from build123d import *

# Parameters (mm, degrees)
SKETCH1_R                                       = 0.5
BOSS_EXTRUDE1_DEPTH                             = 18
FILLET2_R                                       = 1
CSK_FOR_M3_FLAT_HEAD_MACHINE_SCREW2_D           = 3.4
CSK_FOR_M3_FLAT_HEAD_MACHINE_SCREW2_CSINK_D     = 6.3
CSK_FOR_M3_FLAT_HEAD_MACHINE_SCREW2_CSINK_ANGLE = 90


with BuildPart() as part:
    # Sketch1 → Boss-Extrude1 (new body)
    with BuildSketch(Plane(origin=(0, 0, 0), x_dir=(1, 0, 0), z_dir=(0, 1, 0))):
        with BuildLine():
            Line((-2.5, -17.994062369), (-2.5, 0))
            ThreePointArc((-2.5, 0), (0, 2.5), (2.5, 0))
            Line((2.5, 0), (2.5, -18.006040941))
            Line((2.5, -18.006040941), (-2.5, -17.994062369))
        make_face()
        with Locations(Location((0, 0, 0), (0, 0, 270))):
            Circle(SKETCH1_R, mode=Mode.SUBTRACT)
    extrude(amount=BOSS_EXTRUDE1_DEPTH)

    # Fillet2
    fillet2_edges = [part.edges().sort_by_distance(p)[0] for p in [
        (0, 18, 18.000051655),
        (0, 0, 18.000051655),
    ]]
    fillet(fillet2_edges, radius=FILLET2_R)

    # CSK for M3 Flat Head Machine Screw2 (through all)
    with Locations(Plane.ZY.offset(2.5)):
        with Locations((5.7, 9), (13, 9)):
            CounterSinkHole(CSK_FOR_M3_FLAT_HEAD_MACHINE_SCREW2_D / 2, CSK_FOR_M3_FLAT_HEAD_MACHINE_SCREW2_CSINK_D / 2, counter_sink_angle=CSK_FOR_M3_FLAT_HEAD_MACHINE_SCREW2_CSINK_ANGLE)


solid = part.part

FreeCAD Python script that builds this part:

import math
import FreeCAD as App
import Part
import Sketcher

V = App.Vector
Q = App.Units.Quantity


def edges_at(feature, points):
    """Names of the edges that pass closest to the given points."""
    edges = feature.Shape.Edges
    near = lambda p: min(range(len(edges)), key=lambda i: edges[i].distToShape(Part.Vertex(*p))[0])
    return sorted({f"Edge{near(p) + 1}" for p in points})

doc = App.newDocument("Part")
params = doc.addObject("Spreadsheet::Sheet", "Params")
for row, (alias, value) in enumerate([
    ("sketch1_diameter", "1 mm"),
    ("sketch1_radius", "2.5 mm"),
    ("pad1_length", "18 mm"),
    ("fillet_radius", "1 mm"),
    ("sketch2_diameter", "3.4 mm"),
    ("hole_diameter", "3.4 mm"),
    ("hole_csink_diameter", "6.3 mm"),
], start=1):
    params.set(f"A{row}", alias)
    params.set(f"B{row}", "=" + value)
    params.setAlias(f"B{row}", alias)

body = doc.addObject("PartDesign::Body", "Body")

# Sketch on XZ plane
sketch1 = body.newObject("Sketcher::SketchObject", "Sketch")
sketch1.AttachmentSupport = (doc.getObject("XZ_Plane"), [""])
sketch1.MapMode = "FlatFace"
sketch1.addGeometry([
    Part.LineSegment(V(-2.5, 0, 0), V(-2.5, 18, 0)),  # 0
    Part.LineSegment(V(-2.5, 18, 0), V(2.5, 18, 0)),  # 1
    Part.LineSegment(V(2.5, 18, 0), V(2.5, 0, 0)),  # 2
    Part.ArcOfCircle(Part.Circle(V(0, 0, 0), V(0, 0, 1), 2.5), math.radians(180), math.radians(360)),  # 3
    Part.Circle(V(0, 0, 0), V(0, 0, 1), 0.5),  # 4
], False)
sketch1.addConstraint([
    Sketcher.Constraint("Coincident", 0, 2, 1, 1),
    Sketcher.Constraint("Coincident", 1, 2, 2, 1),
    Sketcher.Constraint("Tangent", 2, 2, 3, 2),
    Sketcher.Constraint("Tangent", 3, 1, 0, 1),
    Sketcher.Constraint("Vertical", 0),
    Sketcher.Constraint("Vertical", 2),
    Sketcher.Constraint("Coincident", 3, 3, -1, 1),
    Sketcher.Constraint("Coincident", 4, 3, -1, 1),
    Sketcher.Constraint("Diameter", 4, Q("1 mm")),
    Sketcher.Constraint("Radius", 3, Q("2.5 mm")),
    Sketcher.Constraint("DistanceY", 2, 2, 2, 1, Q("18.006041 mm")),
    Sketcher.Constraint("DistanceY", 0, 1, 0, 2, Q("17.994062 mm")),
])
sketch1.setExpression("Constraints[8]", "Params.sketch1_diameter")
sketch1.setExpression("Constraints[9]", "Params.sketch1_radius")
pad1 = body.newObject("PartDesign::Pad", "Pad")
pad1.Profile = sketch1
pad1.setExpression("Length", "Params.pad1_length")
pad1.Reversed = True
doc.recompute()

fillet = body.newObject("PartDesign::Fillet", "Fillet")
fillet.Base = (pad1, edges_at(pad1, [(0, 18, 18), (0, 0, 18)]))
fillet.setExpression("Radius", "Params.fillet_radius")

# Sketch on YZ plane
sketch2 = body.newObject("Sketcher::SketchObject", "Sketch001")
sketch2.AttachmentSupport = (doc.getObject("YZ_Plane"), [""])
sketch2.MapMode = "FlatFace"
sketch2.AttachmentOffset = App.Placement(V(0, 0, -2.5), App.Rotation())
sketch2.addGeometry([
    Part.Circle(V(9, 5.7, 0), V(0, 0, 1), 1.7),
    Part.Circle(V(9, 13, 0), V(0, 0, 1), 1.7),
], False)
sketch2.addConstraint([
    Sketcher.Constraint("Equal", 0, 1),
    Sketcher.Constraint("Vertical", 0, 3, 1, 3),
    Sketcher.Constraint("Diameter", 0, Q("3.4 mm")),
    Sketcher.Constraint("DistanceX", -1, 1, 0, 3, Q("9 mm")),
    Sketcher.Constraint("DistanceY", -1, 1, 1, 3, Q("13 mm")),
    Sketcher.Constraint("DistanceY", -1, 1, 0, 3, Q("5.7 mm")),
])
sketch2.setExpression("Constraints[2]", "Params.sketch2_diameter")
doc.recompute()
hole = body.newObject("PartDesign::Hole", "Hole")
hole.Profile = sketch2
hole.ThreadType = "None"
hole.setExpression("Diameter", "Params.hole_diameter")
hole.DepthType = "ThroughAll"
hole.HoleCutType = "Countersink"
hole.setExpression("HoleCutDiameter", "Params.hole_csink_diameter")
hole.HoleCutCountersinkAngle = 90
hole.Reversed = True

doc.recompute()
